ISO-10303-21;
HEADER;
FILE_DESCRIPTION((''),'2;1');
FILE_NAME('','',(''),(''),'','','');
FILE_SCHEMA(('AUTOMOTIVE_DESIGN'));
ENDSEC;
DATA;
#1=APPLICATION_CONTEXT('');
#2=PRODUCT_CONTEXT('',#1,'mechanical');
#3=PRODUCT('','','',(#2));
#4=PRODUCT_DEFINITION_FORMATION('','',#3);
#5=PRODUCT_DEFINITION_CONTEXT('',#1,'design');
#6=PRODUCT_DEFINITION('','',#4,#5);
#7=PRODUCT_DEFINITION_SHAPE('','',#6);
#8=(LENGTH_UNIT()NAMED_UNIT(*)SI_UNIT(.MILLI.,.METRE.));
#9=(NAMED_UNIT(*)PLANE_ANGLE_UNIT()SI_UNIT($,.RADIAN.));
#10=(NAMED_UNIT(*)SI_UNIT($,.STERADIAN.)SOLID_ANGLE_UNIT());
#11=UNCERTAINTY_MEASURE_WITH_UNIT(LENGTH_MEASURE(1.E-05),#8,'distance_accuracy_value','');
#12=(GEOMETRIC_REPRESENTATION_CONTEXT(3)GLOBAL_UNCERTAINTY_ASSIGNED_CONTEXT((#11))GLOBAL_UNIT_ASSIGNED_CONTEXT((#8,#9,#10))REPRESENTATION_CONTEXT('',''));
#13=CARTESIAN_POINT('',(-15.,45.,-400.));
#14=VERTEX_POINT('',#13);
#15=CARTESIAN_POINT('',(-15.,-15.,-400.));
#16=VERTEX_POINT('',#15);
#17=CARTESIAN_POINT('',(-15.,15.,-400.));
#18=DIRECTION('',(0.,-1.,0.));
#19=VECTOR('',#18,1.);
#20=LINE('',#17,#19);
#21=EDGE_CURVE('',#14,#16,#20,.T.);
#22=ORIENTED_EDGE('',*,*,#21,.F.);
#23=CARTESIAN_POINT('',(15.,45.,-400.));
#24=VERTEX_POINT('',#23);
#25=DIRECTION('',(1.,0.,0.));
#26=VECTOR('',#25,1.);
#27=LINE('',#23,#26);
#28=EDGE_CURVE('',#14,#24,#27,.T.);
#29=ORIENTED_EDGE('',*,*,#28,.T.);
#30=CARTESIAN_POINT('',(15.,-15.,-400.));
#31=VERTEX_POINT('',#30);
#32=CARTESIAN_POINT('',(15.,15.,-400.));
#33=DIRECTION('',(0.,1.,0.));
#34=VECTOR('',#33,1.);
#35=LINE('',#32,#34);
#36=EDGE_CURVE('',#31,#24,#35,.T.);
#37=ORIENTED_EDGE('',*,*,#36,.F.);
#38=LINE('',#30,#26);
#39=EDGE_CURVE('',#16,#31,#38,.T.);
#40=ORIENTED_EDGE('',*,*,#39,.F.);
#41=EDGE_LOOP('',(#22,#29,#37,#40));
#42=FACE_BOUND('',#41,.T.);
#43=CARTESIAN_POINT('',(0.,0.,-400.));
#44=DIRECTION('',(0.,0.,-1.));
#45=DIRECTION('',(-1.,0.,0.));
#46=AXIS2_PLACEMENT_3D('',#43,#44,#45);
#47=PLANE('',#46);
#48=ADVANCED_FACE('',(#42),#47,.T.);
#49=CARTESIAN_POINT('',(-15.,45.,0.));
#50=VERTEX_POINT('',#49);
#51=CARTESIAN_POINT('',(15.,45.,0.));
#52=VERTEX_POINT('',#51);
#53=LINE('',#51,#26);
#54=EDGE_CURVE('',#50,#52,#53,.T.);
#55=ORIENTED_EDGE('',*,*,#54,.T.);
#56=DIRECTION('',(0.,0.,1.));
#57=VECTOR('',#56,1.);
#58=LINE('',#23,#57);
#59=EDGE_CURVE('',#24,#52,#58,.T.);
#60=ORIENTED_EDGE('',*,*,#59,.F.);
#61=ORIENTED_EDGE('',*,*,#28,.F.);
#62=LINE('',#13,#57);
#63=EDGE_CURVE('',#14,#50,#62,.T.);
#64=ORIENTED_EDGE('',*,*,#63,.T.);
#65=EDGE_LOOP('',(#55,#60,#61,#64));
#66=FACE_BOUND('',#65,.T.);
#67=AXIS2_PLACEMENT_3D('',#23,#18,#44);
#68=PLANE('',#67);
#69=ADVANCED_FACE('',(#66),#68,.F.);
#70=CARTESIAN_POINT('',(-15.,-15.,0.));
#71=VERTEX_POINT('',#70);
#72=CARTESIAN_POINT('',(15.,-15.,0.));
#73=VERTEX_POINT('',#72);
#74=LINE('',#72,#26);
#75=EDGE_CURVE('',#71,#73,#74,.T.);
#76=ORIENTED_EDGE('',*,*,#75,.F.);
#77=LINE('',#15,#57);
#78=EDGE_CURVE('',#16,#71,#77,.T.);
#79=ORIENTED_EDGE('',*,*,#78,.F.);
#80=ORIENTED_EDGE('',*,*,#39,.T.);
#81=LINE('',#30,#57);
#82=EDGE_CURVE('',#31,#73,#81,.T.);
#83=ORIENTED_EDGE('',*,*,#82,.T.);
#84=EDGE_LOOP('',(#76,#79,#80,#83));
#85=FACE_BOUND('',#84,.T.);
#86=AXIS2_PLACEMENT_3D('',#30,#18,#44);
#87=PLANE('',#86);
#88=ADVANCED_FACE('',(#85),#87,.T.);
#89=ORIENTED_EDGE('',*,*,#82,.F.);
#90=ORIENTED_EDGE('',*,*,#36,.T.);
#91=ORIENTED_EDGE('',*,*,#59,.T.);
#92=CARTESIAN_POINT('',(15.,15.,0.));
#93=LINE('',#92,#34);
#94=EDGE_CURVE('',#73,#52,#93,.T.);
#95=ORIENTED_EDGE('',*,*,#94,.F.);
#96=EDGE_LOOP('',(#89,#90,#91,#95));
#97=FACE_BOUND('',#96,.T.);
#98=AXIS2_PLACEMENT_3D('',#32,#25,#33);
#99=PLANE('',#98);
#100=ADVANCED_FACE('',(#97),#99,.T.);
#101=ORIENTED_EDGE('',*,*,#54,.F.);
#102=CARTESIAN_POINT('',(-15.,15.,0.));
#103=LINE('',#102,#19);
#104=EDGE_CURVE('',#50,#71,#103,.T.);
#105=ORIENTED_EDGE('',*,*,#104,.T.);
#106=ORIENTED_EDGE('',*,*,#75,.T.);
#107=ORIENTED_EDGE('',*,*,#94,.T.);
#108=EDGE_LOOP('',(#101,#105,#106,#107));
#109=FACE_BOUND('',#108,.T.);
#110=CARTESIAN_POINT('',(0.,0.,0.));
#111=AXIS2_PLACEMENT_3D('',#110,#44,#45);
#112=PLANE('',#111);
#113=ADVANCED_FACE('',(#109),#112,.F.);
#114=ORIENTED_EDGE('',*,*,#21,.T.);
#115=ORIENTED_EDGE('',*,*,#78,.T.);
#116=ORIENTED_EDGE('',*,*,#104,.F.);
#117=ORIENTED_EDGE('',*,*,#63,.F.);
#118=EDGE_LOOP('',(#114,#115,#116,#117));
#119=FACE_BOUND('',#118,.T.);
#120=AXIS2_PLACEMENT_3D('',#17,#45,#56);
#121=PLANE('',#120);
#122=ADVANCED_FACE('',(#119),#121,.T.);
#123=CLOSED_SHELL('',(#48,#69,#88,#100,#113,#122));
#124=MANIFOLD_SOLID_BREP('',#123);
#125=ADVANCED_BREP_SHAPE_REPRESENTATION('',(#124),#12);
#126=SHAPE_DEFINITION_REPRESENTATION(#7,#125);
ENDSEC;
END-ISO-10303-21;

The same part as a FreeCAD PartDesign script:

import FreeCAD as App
import Part
import Sketcher
from FreeCAD import Vector
Q = App.Units.Quantity


def add_polygon(sketch, points):
    """Adds a closed chain of lines whose ends are joined by coincident constraints."""
    first, n = sketch.GeometryCount, len(points)
    for a, b in zip(points, points[1:] + points[:1]):
        sketch.addGeometry(Part.LineSegment(App.Vector(*a, 0), App.Vector(*b, 0)), False)
    for i in range(n):
        sketch.addConstraint(Sketcher.Constraint("Coincident", first + i, 2, first + (i + 1) % n, 1))

doc = App.newDocument("Part")
body = doc.addObject("PartDesign::Body", "Body")

sketch1 = doc.addObject("Sketcher::SketchObject", "Sketch")
body.addObject(sketch1)
sketch1.AttachmentSupport = (doc.XY_Plane, [""])
sketch1.MapMode = "FlatFace"
add_polygon(sketch1, [(-15, 15), (-15, -15), (15, -15), (15, 15)])
sketch1.addConstraint(Sketcher.Constraint("Vertical", 0))
sketch1.addConstraint(Sketcher.Constraint("Horizontal", 1))
sketch1.addConstraint(Sketcher.Constraint("Vertical", 2))
sketch1.addConstraint(Sketcher.Constraint("Horizontal", 3))
sketch1.addConstraint(Sketcher.Constraint("Symmetric", 0, 2, 2, 2, -1, 1))
sketch1.addConstraint(Sketcher.Constraint("Equal", 3, 0))
sketch1.addConstraint(Sketcher.Constraint("DistanceX", 1, 1, 1, 2, Q("30 mm")))
pad1 = doc.addObject("PartDesign::Pad", "Pad")
body.addObject(pad1)
pad1.Profile = sketch1
pad1.Length = 400
pad1.Reversed = True
doc.recompute()

datumplane = doc.addObject("PartDesign::Plane", "DatumPlane")
body.addObject(datumplane)
datumplane.AttachmentSupport = (doc.XZ_Plane, [""])
datumplane.MapMode = "FlatFace"
datumplane.AttachmentOffset = App.Placement(Vector(0, 0, -15), App.Rotation())
mirrored = doc.addObject("PartDesign::Mirrored", "Mirrored")
body.addObject(mirrored)
mirrored.Originals = [pad1]
mirrored.MirrorPlane = (datumplane, [""])
body.Tip = mirrored

doc.recompute()
